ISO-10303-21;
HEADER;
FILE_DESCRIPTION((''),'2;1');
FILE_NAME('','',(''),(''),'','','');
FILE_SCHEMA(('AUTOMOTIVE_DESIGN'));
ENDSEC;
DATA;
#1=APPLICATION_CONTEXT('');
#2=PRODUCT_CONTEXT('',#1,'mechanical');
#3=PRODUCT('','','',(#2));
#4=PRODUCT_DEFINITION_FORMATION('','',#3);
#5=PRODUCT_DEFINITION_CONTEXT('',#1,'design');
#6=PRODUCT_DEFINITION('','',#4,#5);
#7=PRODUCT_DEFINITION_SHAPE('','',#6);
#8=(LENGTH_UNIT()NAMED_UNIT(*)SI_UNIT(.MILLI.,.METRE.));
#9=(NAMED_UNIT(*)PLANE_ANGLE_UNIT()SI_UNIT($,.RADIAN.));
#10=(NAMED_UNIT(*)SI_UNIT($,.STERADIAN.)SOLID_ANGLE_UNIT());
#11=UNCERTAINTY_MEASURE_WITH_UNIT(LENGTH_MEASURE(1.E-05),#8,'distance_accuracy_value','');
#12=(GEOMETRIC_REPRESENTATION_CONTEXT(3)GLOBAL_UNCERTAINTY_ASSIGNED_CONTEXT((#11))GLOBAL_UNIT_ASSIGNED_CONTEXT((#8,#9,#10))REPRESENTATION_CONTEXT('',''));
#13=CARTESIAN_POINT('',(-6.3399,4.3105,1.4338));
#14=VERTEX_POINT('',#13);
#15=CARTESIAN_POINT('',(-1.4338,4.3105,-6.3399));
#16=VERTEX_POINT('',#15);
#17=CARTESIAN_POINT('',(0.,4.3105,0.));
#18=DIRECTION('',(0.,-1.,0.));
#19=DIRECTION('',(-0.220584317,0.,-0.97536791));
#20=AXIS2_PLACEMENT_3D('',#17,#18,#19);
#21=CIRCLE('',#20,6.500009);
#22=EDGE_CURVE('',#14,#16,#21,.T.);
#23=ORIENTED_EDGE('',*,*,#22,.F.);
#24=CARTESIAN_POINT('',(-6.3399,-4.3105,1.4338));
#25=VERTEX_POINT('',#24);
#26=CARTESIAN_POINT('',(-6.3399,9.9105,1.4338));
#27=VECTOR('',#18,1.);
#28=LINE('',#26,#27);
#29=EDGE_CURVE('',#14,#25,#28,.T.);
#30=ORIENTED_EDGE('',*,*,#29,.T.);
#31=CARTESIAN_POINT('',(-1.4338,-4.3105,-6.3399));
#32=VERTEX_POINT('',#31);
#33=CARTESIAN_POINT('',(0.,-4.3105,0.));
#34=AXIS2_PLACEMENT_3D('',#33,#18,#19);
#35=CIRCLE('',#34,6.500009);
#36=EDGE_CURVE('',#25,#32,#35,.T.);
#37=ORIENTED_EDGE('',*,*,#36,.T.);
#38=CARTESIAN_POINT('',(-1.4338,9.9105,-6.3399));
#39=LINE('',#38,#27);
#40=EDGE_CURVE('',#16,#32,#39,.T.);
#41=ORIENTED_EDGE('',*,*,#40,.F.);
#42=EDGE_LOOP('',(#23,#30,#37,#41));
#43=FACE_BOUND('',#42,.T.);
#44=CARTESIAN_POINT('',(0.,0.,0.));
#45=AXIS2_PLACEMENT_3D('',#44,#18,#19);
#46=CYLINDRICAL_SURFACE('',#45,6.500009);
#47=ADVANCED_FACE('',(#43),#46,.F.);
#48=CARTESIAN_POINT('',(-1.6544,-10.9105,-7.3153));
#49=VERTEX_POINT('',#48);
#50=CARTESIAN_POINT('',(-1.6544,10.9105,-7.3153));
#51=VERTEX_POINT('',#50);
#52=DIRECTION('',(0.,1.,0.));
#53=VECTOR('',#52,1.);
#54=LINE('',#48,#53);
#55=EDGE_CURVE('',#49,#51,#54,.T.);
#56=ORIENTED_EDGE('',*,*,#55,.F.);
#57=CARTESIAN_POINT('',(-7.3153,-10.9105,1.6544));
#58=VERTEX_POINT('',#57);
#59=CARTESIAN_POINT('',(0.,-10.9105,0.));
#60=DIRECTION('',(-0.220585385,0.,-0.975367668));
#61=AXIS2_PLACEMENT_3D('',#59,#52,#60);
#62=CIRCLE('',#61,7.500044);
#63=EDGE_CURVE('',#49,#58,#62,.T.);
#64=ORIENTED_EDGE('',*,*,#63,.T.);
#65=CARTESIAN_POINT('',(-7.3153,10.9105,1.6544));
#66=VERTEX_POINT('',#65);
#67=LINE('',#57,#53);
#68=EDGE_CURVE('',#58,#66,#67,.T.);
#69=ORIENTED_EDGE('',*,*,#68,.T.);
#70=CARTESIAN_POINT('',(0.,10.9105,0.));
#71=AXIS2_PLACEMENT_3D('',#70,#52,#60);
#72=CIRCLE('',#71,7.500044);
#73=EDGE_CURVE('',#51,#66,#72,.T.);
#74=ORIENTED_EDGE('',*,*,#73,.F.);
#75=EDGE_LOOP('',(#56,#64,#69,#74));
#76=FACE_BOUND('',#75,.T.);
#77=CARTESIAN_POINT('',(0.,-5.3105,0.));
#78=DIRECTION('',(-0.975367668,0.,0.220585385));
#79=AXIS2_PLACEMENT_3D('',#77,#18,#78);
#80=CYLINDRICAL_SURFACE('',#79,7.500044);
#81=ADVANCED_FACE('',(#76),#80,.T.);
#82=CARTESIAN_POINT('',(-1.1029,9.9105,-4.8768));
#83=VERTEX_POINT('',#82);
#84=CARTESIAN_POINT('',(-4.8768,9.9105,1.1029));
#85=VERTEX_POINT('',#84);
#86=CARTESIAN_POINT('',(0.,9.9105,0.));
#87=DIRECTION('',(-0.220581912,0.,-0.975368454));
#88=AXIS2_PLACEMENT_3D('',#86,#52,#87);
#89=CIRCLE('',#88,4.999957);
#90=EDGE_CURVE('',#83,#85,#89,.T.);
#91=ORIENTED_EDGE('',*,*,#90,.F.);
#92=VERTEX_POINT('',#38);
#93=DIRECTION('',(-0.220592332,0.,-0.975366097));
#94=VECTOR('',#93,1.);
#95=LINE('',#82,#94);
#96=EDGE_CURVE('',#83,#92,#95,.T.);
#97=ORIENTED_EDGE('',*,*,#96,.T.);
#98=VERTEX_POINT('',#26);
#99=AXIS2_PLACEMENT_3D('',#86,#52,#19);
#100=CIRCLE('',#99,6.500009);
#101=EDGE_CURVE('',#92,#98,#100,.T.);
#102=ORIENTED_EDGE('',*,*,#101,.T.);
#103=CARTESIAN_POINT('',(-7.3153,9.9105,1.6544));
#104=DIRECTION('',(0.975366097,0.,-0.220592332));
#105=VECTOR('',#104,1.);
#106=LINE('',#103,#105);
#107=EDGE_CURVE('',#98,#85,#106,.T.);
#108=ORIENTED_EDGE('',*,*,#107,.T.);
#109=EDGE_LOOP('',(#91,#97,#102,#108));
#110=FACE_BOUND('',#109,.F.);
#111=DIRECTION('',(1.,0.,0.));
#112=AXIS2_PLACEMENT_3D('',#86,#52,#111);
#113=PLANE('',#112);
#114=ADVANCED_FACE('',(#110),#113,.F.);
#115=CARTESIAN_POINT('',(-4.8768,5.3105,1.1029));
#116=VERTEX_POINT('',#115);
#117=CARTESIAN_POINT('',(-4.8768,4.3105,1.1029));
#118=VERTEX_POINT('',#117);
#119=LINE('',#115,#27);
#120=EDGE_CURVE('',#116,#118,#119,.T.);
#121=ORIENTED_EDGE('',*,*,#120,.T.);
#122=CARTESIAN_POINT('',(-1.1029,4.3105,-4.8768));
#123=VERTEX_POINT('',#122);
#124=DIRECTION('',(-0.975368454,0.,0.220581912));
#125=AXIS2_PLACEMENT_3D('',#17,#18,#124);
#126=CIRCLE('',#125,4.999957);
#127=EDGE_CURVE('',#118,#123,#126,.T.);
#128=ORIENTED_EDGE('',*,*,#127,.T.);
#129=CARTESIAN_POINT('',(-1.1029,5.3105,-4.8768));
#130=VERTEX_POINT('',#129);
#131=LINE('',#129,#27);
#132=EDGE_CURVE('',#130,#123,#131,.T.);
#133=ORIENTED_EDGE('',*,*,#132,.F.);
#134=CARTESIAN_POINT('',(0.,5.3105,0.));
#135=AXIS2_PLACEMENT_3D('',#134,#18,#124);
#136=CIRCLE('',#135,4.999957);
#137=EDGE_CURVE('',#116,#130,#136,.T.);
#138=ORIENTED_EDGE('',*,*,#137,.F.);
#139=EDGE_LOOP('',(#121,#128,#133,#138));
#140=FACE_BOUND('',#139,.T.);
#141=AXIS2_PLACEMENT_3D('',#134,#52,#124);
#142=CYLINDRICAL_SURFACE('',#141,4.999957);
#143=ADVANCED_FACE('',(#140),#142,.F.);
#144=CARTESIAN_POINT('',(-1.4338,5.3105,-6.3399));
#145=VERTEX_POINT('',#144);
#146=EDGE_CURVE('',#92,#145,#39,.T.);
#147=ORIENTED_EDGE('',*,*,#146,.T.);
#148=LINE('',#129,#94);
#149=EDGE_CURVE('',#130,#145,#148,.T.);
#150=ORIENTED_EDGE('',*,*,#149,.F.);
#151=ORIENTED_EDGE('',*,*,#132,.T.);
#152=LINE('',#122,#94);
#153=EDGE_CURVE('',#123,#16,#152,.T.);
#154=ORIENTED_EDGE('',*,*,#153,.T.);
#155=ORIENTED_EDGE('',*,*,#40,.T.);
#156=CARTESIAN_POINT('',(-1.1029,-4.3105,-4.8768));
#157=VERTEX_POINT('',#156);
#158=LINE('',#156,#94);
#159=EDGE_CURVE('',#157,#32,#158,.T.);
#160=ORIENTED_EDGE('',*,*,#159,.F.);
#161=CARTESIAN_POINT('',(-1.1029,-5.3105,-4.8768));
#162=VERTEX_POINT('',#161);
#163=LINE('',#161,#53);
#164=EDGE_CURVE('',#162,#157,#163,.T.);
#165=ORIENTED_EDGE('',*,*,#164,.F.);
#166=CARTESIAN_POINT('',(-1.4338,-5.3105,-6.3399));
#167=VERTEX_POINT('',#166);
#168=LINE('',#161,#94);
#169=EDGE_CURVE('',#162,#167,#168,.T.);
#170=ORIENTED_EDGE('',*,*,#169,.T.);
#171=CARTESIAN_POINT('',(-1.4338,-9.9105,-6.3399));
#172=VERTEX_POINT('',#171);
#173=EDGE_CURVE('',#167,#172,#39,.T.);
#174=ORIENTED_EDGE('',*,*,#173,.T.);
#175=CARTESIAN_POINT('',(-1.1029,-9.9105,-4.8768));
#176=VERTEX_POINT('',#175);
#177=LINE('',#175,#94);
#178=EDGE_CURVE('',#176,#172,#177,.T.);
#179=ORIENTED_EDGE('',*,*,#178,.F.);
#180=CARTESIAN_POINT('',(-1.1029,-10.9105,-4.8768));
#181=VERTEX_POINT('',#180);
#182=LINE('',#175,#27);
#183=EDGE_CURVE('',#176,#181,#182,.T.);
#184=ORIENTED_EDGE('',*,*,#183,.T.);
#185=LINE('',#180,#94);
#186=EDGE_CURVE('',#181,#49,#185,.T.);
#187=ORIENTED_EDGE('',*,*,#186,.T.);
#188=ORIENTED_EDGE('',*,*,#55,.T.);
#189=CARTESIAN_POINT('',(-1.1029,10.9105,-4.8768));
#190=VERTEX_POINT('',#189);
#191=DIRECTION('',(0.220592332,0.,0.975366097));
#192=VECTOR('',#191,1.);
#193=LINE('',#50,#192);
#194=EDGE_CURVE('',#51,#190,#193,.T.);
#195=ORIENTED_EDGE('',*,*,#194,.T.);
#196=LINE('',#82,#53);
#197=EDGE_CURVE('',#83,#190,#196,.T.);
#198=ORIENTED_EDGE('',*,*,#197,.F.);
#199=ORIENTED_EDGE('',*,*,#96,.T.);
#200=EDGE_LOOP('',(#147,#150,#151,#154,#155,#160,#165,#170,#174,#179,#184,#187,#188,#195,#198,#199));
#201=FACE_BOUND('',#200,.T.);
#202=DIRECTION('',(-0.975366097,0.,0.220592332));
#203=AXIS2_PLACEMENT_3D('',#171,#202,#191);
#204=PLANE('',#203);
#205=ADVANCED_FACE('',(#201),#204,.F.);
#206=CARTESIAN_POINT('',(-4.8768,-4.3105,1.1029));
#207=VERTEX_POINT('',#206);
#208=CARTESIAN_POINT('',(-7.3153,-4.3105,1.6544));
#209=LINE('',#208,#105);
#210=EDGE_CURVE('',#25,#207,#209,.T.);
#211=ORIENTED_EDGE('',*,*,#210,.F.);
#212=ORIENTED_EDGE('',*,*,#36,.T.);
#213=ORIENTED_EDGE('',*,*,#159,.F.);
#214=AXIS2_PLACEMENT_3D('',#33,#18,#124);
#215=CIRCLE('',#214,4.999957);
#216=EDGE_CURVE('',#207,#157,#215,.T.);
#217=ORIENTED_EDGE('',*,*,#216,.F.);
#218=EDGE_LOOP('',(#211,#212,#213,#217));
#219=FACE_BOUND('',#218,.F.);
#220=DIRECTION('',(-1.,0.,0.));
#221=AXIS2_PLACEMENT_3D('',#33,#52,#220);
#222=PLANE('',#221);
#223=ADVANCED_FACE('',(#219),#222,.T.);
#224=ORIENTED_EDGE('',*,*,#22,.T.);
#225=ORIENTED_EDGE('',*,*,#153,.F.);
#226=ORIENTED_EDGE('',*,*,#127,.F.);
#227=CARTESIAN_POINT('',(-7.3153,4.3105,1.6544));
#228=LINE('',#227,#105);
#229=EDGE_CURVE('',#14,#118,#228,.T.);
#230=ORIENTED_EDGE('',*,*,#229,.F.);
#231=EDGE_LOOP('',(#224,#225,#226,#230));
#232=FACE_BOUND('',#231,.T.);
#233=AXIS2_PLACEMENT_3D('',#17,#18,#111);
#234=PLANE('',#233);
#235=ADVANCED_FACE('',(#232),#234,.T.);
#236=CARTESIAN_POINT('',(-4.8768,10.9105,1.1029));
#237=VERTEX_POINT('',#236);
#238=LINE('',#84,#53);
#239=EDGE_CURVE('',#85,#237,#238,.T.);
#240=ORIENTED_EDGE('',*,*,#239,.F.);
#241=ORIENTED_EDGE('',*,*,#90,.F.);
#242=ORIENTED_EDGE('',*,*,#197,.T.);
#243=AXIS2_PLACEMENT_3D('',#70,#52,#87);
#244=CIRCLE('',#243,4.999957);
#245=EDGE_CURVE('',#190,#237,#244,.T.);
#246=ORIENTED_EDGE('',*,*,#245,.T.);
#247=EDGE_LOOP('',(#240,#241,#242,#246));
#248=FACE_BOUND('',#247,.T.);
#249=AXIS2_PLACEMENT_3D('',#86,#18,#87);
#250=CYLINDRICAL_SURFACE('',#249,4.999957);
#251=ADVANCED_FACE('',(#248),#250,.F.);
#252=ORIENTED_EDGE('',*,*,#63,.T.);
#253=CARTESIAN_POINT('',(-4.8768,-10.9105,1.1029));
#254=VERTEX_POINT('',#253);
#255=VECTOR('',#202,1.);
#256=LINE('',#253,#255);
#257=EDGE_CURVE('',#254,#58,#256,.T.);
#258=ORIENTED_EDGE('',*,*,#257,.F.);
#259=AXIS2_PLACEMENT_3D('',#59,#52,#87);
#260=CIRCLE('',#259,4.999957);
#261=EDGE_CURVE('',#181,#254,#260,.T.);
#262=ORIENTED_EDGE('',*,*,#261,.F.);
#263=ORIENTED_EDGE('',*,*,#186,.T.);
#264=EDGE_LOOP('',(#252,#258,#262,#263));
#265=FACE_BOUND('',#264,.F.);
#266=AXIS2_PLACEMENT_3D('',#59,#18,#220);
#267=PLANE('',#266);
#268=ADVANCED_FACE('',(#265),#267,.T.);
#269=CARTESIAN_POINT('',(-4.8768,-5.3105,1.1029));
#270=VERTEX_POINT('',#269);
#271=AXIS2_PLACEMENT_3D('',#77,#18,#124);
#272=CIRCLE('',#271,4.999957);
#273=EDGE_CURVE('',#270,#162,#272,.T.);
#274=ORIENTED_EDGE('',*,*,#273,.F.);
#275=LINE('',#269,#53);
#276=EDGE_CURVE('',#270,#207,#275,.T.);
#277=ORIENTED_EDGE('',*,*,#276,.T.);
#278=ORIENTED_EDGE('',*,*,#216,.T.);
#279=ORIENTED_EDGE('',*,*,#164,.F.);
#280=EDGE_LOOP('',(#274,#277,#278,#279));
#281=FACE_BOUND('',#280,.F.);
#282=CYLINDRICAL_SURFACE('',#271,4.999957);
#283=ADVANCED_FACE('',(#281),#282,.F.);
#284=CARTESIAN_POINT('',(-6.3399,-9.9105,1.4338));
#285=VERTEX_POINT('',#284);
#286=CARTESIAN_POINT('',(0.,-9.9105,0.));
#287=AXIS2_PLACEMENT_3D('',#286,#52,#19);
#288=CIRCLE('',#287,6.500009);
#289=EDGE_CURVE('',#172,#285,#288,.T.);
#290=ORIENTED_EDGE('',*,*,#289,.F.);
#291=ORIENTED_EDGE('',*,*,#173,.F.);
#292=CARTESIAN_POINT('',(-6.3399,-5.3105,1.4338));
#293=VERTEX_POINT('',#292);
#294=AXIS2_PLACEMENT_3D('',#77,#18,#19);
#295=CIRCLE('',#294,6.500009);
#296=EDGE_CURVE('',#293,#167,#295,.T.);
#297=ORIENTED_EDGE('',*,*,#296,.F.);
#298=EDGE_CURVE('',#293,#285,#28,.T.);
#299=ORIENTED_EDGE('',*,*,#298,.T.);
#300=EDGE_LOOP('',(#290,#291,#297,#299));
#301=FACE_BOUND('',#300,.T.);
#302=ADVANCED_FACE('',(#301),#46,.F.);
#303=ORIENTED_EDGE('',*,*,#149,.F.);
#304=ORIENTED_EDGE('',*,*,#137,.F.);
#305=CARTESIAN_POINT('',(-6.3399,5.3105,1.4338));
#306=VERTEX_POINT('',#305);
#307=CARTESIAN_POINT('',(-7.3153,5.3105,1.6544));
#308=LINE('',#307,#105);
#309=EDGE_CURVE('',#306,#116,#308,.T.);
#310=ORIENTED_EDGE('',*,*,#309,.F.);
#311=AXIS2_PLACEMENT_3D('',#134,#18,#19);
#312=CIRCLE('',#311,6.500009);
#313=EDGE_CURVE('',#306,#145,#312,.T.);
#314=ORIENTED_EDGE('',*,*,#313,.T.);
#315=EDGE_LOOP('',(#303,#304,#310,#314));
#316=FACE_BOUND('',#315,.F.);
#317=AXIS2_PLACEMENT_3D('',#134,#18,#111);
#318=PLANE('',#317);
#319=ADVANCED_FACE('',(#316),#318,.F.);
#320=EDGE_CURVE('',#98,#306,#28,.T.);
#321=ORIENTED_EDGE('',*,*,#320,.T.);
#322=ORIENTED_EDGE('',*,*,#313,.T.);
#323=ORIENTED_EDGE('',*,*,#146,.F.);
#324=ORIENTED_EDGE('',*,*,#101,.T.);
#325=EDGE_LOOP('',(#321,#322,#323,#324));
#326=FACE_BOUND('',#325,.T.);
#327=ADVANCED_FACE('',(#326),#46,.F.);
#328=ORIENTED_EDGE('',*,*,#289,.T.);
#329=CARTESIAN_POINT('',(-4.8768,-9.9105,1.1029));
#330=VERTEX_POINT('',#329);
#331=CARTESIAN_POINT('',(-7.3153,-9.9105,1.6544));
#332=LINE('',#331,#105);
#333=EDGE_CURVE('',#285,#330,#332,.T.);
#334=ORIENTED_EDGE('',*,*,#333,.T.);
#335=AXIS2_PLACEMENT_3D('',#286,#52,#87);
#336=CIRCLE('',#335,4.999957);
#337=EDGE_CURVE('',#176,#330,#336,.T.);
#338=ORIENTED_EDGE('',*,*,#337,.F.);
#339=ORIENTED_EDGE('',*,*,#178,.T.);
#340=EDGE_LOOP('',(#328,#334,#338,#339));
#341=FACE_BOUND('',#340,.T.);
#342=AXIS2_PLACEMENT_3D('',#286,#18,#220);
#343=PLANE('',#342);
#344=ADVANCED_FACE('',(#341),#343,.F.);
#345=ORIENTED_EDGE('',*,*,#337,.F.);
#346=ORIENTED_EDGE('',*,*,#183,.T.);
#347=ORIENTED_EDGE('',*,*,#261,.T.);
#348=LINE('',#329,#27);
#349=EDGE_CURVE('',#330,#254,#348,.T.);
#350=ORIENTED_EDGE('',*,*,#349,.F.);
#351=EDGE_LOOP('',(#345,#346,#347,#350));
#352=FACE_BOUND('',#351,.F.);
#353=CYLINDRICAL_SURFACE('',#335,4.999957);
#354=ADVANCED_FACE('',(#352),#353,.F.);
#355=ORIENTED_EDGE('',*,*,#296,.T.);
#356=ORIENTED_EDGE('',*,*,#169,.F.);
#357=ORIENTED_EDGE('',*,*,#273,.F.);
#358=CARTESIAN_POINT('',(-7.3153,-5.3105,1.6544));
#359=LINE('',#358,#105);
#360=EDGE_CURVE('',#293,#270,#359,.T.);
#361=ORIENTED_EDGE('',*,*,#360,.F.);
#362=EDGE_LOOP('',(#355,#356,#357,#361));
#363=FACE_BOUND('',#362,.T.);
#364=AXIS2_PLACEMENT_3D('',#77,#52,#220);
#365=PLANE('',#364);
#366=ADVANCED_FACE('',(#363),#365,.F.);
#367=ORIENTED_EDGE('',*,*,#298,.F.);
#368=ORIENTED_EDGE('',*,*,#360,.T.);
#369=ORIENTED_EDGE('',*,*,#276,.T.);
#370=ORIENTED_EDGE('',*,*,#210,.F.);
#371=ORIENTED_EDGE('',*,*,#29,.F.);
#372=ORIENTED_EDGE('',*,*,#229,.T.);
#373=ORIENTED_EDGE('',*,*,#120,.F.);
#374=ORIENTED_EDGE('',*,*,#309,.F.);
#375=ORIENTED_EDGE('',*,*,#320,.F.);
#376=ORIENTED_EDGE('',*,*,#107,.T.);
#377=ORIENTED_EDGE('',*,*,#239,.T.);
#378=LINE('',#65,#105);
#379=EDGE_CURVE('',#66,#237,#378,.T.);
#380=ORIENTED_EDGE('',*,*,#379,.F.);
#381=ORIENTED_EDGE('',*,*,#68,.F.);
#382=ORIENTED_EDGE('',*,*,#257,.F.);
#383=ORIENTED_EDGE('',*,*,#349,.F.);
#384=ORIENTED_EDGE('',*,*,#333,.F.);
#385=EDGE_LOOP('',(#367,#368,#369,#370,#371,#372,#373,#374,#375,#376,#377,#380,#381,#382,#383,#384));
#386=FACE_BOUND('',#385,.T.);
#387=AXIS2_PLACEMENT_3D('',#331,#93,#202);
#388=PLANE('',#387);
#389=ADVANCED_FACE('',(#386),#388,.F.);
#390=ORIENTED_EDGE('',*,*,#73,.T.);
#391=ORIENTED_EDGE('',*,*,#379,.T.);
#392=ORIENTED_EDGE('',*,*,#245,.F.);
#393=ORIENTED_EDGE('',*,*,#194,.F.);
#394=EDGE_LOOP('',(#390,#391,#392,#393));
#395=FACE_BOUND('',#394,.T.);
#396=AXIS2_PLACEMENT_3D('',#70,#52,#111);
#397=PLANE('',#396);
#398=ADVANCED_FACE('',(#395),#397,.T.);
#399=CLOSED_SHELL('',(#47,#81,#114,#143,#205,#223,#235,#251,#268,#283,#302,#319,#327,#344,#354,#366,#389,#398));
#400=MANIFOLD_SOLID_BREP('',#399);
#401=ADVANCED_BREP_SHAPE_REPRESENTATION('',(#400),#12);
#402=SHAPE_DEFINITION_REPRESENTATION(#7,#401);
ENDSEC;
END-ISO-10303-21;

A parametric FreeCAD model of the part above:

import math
import FreeCAD as App
import Part
import Sketcher

doc = App.newDocument("Part")
body = doc.addObject("PartDesign::Body", "Body")

# Sketch on XZ plane
sketch1 = body.newObject("Sketcher::SketchObject", "Sketch")
sketch1.AttachmentSupport = (doc.getObject("XZ_Plane"), [""])
sketch1.MapMode = "FlatFace"
sketch1.addGeometry(Part.LineSegment(App.Vector(-1.4338, -6.3399, 0), App.Vector(-1.6544, -7.3153, 0)), False)
sketch1.addGeometry(Part.ArcOfCircle(Part.Circle(App.Vector(0, 0, 0), App.Vector(0, 0, 1), 7.500044), math.radians(167.256582), math.radians(257.256582)), False)
sketch1.addGeometry(Part.LineSegment(App.Vector(-7.3153, 1.6544, 0), App.Vector(-6.3399, 1.4338, 0)), False)
sketch1.addGeometry(Part.ArcOfCircle(Part.Circle(App.Vector(0, 0, 0), App.Vector(0, 0, 1), 6.500009), math.radians(167.256645), math.radians(257.256645)), False)
sketch1.addConstraint(Sketcher.Constraint("Coincident", 0, 2, 1, 2))
sketch1.addConstraint(Sketcher.Constraint("Coincident", 1, 1, 2, 1))
sketch1.addConstraint(Sketcher.Constraint("Coincident", 2, 2, 3, 1))
sketch1.addConstraint(Sketcher.Constraint("Coincident", 3, 2, 0, 1))
sketch1.addConstraint(Sketcher.Constraint("Coincident", 1, 3, -1, 1))
sketch1.addConstraint(Sketcher.Constraint("Coincident", 3, 3, -1, 1))
sketch1.addConstraint(Sketcher.Constraint("Perpendicular", 0, 2))
sketch1.addConstraint(Sketcher.Constraint("Radius", 1, 7.5))
sketch1.addConstraint(Sketcher.Constraint("Distance", 0, 1.0))
sketch1.addConstraint(Sketcher.Constraint("DistanceX", 2, 2, -1, 1, 6.34))
sketch1.addConstraint(Sketcher.Constraint("DistanceY", 3, 2, -1, 1, 6.34))
sketch1.addConstraint(Sketcher.Constraint("DistanceX", 1, 1, 0, 2, 5.661))
pad1 = body.newObject("PartDesign::Pad", "Pad")
pad1.Profile = sketch1
pad1.Length = 19.821
pad1.Midplane = True

# Sketch on XZ plane
sketch2 = body.newObject("Sketcher::SketchObject", "Sketch001")
sketch2.AttachmentSupport = (doc.getObject("XZ_Plane"), [""])
sketch2.MapMode = "FlatFace"
sketch2.AttachmentOffset = App.Placement(App.Vector(0, 0, -9.9105), App.Rotation())
sketch2.addGeometry(Part.LineSegment(App.Vector(-1.1029, -4.8768, 0), App.Vector(-1.6544, -7.3153, 0)), False)
sketch2.addGeometry(Part.ArcOfCircle(Part.Circle(App.Vector(0, 0, 0), App.Vector(0, 0, 1), 7.500044), math.radians(167.256582), math.radians(257.256582)), False)
sketch2.addGeometry(Part.LineSegment(App.Vector(-7.3153, 1.6544, 0), App.Vector(-4.8768, 1.1029, 0)), False)
sketch2.addGeometry(Part.ArcOfCircle(Part.Circle(App.Vector(0, 0, 0), App.Vector(0, 0, 1), 4.999957), math.radians(167.256786), math.radians(257.256786)), False)
sketch2.addConstraint(Sketcher.Constraint("Coincident", 0, 2, 1, 2))
sketch2.addConstraint(Sketcher.Constraint("Coincident", 1, 1, 2, 1))
sketch2.addConstraint(Sketcher.Constraint("Coincident", 2, 2, 3, 1))
sketch2.addConstraint(Sketcher.Constraint("Coincident", 3, 2, 0, 1))
sketch2.addConstraint(Sketcher.Constraint("Coincident", 1, 3, -1, 1))
sketch2.addConstraint(Sketcher.Constraint("Coincident", 3, 3, -1, 1))
sketch2.addConstraint(Sketcher.Constraint("Perpendicular", 0, 2))
sketch2.addConstraint(Sketcher.Constraint("Radius", 3, 5.0))
sketch2.addConstraint(Sketcher.Constraint("Distance", 0, 2.5))
sketch2.addConstraint(Sketcher.Constraint("DistanceY", -1, 1, 2, 2, 1.103))
sketch2.addConstraint(Sketcher.Constraint("DistanceX", 3, 2, -1, 1, 1.103))
sketch2.addConstraint(Sketcher.Constraint("DistanceX", 1, 1, 0, 2, 5.661))
pad2 = body.newObject("PartDesign::Pad", "Pad001")
pad2.Profile = sketch2
pad2.Length = 1
pad2.Reversed = True
doc.recompute()

mirrored = body.newObject("PartDesign::Mirrored", "Mirrored")
mirrored.Originals = [pad2]
mirrored.MirrorPlane = (doc.getObject("XZ_Plane"), [""])
body.Tip = mirrored

# Sketch on XZ plane
sketch3 = body.newObject("Sketcher::SketchObject", "Sketch002")
sketch3.AttachmentSupport = (doc.getObject("XZ_Plane"), [""])
sketch3.MapMode = "FlatFace"
sketch3.AttachmentOffset = App.Placement(App.Vector(0, 0, -5.3105), App.Rotation())
sketch3.addGeometry(Part.LineSegment(App.Vector(-4.8768, 1.1029, 0), App.Vector(-7.3153, 1.6544, 0)), False)
sketch3.addGeometry(Part.ArcOfCircle(Part.Circle(App.Vector(0, 0, 0), App.Vector(0, 0, 1), 7.500044), math.radians(167.256582), math.radians(257.256582)), False)
sketch3.addGeometry(Part.LineSegment(App.Vector(-1.6544, -7.3153, 0), App.Vector(-1.1029, -4.8768, 0)), False)
sketch3.addGeometry(Part.ArcOfCircle(Part.Circle(App.Vector(0, 0, 0), App.Vector(0, 0, 1), 4.999957), math.radians(167.256786), math.radians(257.256786)), False)
sketch3.addConstraint(Sketcher.Constraint("Coincident", 0, 2, 1, 1))
sketch3.addConstraint(Sketcher.Constraint("Coincident", 1, 2, 2, 1))
sketch3.addConstraint(Sketcher.Constraint("Coincident", 2, 2, 3, 2))
sketch3.addConstraint(Sketcher.Constraint("Coincident", 3, 1, 0, 1))
sketch3.addConstraint(Sketcher.Constraint("Coincident", 1, 3, -1, 1))
sketch3.addConstraint(Sketcher.Constraint("Coincident", 3, 3, -1, 1))
sketch3.addConstraint(Sketcher.Constraint("Perpendicular", 0, 2))
sketch3.addConstraint(Sketcher.Constraint("Radius", 3, 5.0))
sketch3.addConstraint(Sketcher.Constraint("Radius", 1, 7.5))
sketch3.addConstraint(Sketcher.Constraint("DistanceX", 2, 2, -1, 1, 1.103))
sketch3.addConstraint(Sketcher.Constraint("DistanceY", -1, 1, 3, 1, 1.103))
sketch3.addConstraint(Sketcher.Constraint("DistanceX", 0, 2, 1, 2, 5.661))
pad3 = body.newObject("PartDesign::Pad", "Pad002")
pad3.Profile = sketch3
pad3.Length = 1
doc.recompute()

mirrored2 = body.newObject("PartDesign::Mirrored", "Mirrored001")
mirrored2.Originals = [pad3]
mirrored2.MirrorPlane = (doc.getObject("XZ_Plane"), [""])
body.Tip = mirrored2

doc.recompute()
